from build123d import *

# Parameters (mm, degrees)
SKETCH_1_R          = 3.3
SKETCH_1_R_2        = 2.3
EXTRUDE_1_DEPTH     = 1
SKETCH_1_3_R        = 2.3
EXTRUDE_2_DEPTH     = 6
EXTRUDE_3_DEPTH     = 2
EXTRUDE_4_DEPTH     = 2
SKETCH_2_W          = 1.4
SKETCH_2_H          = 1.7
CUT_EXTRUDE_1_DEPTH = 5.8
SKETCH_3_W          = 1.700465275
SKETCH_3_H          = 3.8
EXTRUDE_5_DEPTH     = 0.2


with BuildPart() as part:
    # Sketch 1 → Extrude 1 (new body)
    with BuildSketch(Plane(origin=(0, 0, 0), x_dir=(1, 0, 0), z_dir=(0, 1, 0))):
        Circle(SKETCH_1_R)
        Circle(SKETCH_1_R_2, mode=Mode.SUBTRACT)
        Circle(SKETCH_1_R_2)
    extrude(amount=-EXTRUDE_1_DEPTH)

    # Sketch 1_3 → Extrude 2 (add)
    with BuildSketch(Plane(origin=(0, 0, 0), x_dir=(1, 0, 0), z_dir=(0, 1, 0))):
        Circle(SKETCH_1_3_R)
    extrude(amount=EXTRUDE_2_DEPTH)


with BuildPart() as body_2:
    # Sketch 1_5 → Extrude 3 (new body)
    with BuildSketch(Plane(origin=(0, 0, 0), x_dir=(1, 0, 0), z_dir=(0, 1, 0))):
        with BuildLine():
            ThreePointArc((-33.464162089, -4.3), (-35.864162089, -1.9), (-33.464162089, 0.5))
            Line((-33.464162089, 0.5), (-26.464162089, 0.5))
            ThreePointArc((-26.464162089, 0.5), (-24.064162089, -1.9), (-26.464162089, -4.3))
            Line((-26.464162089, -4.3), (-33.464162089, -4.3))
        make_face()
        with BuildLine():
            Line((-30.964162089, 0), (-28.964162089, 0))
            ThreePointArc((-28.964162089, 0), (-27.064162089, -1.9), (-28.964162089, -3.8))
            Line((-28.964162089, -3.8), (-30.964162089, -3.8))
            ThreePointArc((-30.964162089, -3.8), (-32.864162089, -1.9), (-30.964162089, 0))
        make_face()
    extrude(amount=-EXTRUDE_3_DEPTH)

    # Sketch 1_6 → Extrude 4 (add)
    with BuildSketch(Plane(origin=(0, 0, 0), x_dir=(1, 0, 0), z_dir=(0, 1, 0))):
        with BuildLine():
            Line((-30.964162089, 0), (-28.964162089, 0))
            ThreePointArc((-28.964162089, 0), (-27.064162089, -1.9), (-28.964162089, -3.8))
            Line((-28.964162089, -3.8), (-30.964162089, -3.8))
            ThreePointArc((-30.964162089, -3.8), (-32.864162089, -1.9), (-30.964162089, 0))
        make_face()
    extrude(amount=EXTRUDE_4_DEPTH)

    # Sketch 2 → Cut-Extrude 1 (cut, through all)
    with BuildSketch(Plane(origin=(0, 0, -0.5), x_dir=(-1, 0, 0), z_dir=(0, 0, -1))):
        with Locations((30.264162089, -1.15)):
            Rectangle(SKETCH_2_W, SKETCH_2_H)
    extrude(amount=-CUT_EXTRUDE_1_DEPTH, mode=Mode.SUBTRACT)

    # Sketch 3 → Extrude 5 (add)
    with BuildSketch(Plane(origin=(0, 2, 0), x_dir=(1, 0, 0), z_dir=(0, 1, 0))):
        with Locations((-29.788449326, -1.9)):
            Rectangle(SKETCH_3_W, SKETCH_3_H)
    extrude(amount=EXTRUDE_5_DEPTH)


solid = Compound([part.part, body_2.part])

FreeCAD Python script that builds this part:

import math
import FreeCAD as App
import Part
import Sketcher

V = App.Vector


def add_polygon(sketch, points):
    """Adds a closed chain of lines whose ends are joined by coincident constraints."""
    first, n = sketch.GeometryCount, len(points)
    for a, b in zip(points, points[1:] + points[:1]):
        sketch.addGeometry(Part.LineSegment(App.Vector(*a, 0), App.Vector(*b, 0)), False)
    for i in range(n):
        sketch.addConstraint(Sketcher.Constraint("Coincident", first + i, 2, first + (i + 1) % n, 1))

doc = App.newDocument("Part")
body = doc.addObject("PartDesign::Body", "Body")

sketch1 = doc.addObject("Sketcher::SketchObject", "Sketch")
body.addObject(sketch1)
sketch1.AttachmentSupport = (doc.XZ_Plane, [""])
sketch1.MapMode = "FlatFace"
sketch1.addGeometry(Part.Circle(V(0, 0, 0), V(0, 0, 1), 3.3), False)
sketch1.addConstraint([
    Sketcher.Constraint("Coincident", 0, 3, -1, 1),
    Sketcher.Constraint("Diameter", 0, 6.6),
])
pad1 = doc.addObject("PartDesign::Pad", "Pad")
body.addObject(pad1)
pad1.Profile = sketch1
pad1.Length = 1

sketch2 = doc.addObject("Sketcher::SketchObject", "Sketch001")
body.addObject(sketch2)
sketch2.AttachmentSupport = (doc.XZ_Plane, [""])
sketch2.MapMode = "FlatFace"
sketch2.addGeometry(Part.Circle(V(0, 0, 0), V(0, 0, 1), 2.3), False)
sketch2.addConstraint([
    Sketcher.Constraint("Coincident", 0, 3, -1, 1),
    Sketcher.Constraint("Diameter", 0, 4.6),
])
pad2 = doc.addObject("PartDesign::Pad", "Pad001")
body.addObject(pad2)
pad2.Profile = sketch2
pad2.Length = 6
pad2.Reversed = True
body2 = doc.addObject("PartDesign::Body", "Body001")

sketch3 = doc.addObject("Sketcher::SketchObject", "Sketch002")
body2.addObject(sketch3)
sketch3.AttachmentSupport = (doc.getObject("XZ_Plane001"), [""])
sketch3.MapMode = "FlatFace"
sketch3.addGeometry([
    Part.ArcOfCircle(Part.Circle(V(-33.5, 1.9, 0), V(0, 0, 1), 2.4), math.radians(90), math.radians(270)),
    Part.LineSegment(V(-33.5, 4.3, 0), V(-26.5, 4.3, 0)),
    Part.ArcOfCircle(Part.Circle(V(-26.5, 1.9, 0), V(0, 0, 1), 2.4), math.radians(-90), math.radians(90)),
    Part.LineSegment(V(-26.5, -0.5, 0), V(-33.5, -0.5, 0)),
], False)
sketch3.addConstraint([
    Sketcher.Constraint("Tangent", 0, 1, 1, 1),
    Sketcher.Constraint("Tangent", 1, 2, 2, 2),
    Sketcher.Constraint("Tangent", 2, 1, 3, 1),
    Sketcher.Constraint("Tangent", 3, 2, 0, 2),
    Sketcher.Constraint("Horizontal", 1),
    Sketcher.Constraint("Horizontal", 3),
    Sketcher.Constraint("Radius", 0, 2.4),
    Sketcher.Constraint("DistanceX", 1, 1, 1, 2, 7.0),
    Sketcher.Constraint("DistanceY", -1, 1, 0, 3, 1.9),
    Sketcher.Constraint("DistanceX", 0, 3, -1, 1, 33.464162),
])
pad3 = doc.addObject("PartDesign::Pad", "Pad002")
body2.addObject(pad3)
pad3.Profile = sketch3
pad3.Length = 2

sketch4 = doc.addObject("Sketcher::SketchObject", "Sketch003")
body2.addObject(sketch4)
sketch4.AttachmentSupport = (doc.getObject("XZ_Plane001"), [""])
sketch4.MapMode = "FlatFace"
sketch4.addGeometry([
    Part.LineSegment(V(-29, 0, 0), V(-31, 0, 0)),
    Part.ArcOfCircle(Part.Circle(V(-31, 1.9, 0), V(0, 0, 1), 1.9), math.radians(90), math.radians(270)),
    Part.LineSegment(V(-31, 3.8, 0), V(-29, 3.8, 0)),
    Part.ArcOfCircle(Part.Circle(V(-29, 1.9, 0), V(0, 0, 1), 1.9), math.radians(-90), math.radians(90)),
], False)
sketch4.addConstraint([
    Sketcher.Constraint("Tangent", 0, 2, 1, 2),
    Sketcher.Constraint("Tangent", 1, 1, 2, 1),
    Sketcher.Constraint("Tangent", 2, 2, 3, 2),
    Sketcher.Constraint("Tangent", 3, 1, 0, 1),
    Sketcher.Constraint("Horizontal", 0),
    Sketcher.Constraint("Horizontal", 2),
    Sketcher.Constraint("PointOnObject", 0, 2, -1),
    Sketcher.Constraint("Radius", 1, 1.9),
    Sketcher.Constraint("DistanceX", 0, 2, 0, 1, 2.0),
    Sketcher.Constraint("DistanceX", 1, 3, -1, 1, 30.964162),
])
pad4 = doc.addObject("PartDesign::Pad", "Pad003")
body2.addObject(pad4)
pad4.Profile = sketch4
pad4.Length = 2
pad4.Reversed = True

sketch5 = doc.addObject("Sketcher::SketchObject", "Sketch004")
body2.addObject(sketch5)
sketch5.AttachmentSupport = (doc.getObject("XY_Plane001"), [""])
sketch5.MapMode = "FlatFace"
sketch5.AttachmentOffset = App.Placement(V(0, 0, -0.5), App.Rotation())
add_polygon(sketch5, [(-29.6, -0.3), (-29.6, -2), (-31, -2), (-31, -0.3)])
sketch5.addConstraint([
    Sketcher.Constraint("Vertical", 0),
    Sketcher.Constraint("Horizontal", 1),
    Sketcher.Constraint("Vertical", 2),
    Sketcher.Constraint("Horizontal", 3),
    Sketcher.Constraint("DistanceX", 1, 2, 1, 1, 1.4),
    Sketcher.Constraint("DistanceY", 0, 2, 0, 1, 1.7),
    Sketcher.Constraint("DistanceY", 0, 2, -1, 1, 2.0),
    Sketcher.Constraint("DistanceX", 0, 2, -1, 1, 29.564162),
])
pocket1 = doc.addObject("PartDesign::Pocket", "Pocket")
body2.addObject(pocket1)
pocket1.Profile = sketch5
pocket1.Type = "ThroughAll"
pocket1.Reversed = True

sketch6 = doc.addObject("Sketcher::SketchObject", "Sketch005")
body2.addObject(sketch6)
sketch6.AttachmentSupport = (doc.getObject("XZ_Plane001"), [""])
sketch6.MapMode = "FlatFace"
sketch6.AttachmentOffset = App.Placement(V(0, 0, -2), App.Rotation())
add_polygon(sketch6, [(-30.6, 0), (-30.6, 3.8), (-28.9, 3.8), (-28.9, 0)])
sketch6.addConstraint([
    Sketcher.Constraint("Vertical", 0),
    Sketcher.Constraint("Horizontal", 1),
    Sketcher.Constraint("Vertical", 2),
    Sketcher.Constraint("Horizontal", 3),
    Sketcher.Constraint("PointOnObject", 2, 2, -1),
    Sketcher.Constraint("DistanceY", 0, 1, 0, 2, 3.8),
    Sketcher.Constraint("DistanceX", 1, 1, 1, 2, 1.700465),
    Sketcher.Constraint("DistanceX", 0, 2, -1, 1, 30.638682),
])
pad5 = doc.addObject("PartDesign::Pad", "Pad004")
body2.addObject(pad5)
pad5.Profile = sketch6
pad5.Length = 0.2
pad5.Reversed = True

doc.recompute()
